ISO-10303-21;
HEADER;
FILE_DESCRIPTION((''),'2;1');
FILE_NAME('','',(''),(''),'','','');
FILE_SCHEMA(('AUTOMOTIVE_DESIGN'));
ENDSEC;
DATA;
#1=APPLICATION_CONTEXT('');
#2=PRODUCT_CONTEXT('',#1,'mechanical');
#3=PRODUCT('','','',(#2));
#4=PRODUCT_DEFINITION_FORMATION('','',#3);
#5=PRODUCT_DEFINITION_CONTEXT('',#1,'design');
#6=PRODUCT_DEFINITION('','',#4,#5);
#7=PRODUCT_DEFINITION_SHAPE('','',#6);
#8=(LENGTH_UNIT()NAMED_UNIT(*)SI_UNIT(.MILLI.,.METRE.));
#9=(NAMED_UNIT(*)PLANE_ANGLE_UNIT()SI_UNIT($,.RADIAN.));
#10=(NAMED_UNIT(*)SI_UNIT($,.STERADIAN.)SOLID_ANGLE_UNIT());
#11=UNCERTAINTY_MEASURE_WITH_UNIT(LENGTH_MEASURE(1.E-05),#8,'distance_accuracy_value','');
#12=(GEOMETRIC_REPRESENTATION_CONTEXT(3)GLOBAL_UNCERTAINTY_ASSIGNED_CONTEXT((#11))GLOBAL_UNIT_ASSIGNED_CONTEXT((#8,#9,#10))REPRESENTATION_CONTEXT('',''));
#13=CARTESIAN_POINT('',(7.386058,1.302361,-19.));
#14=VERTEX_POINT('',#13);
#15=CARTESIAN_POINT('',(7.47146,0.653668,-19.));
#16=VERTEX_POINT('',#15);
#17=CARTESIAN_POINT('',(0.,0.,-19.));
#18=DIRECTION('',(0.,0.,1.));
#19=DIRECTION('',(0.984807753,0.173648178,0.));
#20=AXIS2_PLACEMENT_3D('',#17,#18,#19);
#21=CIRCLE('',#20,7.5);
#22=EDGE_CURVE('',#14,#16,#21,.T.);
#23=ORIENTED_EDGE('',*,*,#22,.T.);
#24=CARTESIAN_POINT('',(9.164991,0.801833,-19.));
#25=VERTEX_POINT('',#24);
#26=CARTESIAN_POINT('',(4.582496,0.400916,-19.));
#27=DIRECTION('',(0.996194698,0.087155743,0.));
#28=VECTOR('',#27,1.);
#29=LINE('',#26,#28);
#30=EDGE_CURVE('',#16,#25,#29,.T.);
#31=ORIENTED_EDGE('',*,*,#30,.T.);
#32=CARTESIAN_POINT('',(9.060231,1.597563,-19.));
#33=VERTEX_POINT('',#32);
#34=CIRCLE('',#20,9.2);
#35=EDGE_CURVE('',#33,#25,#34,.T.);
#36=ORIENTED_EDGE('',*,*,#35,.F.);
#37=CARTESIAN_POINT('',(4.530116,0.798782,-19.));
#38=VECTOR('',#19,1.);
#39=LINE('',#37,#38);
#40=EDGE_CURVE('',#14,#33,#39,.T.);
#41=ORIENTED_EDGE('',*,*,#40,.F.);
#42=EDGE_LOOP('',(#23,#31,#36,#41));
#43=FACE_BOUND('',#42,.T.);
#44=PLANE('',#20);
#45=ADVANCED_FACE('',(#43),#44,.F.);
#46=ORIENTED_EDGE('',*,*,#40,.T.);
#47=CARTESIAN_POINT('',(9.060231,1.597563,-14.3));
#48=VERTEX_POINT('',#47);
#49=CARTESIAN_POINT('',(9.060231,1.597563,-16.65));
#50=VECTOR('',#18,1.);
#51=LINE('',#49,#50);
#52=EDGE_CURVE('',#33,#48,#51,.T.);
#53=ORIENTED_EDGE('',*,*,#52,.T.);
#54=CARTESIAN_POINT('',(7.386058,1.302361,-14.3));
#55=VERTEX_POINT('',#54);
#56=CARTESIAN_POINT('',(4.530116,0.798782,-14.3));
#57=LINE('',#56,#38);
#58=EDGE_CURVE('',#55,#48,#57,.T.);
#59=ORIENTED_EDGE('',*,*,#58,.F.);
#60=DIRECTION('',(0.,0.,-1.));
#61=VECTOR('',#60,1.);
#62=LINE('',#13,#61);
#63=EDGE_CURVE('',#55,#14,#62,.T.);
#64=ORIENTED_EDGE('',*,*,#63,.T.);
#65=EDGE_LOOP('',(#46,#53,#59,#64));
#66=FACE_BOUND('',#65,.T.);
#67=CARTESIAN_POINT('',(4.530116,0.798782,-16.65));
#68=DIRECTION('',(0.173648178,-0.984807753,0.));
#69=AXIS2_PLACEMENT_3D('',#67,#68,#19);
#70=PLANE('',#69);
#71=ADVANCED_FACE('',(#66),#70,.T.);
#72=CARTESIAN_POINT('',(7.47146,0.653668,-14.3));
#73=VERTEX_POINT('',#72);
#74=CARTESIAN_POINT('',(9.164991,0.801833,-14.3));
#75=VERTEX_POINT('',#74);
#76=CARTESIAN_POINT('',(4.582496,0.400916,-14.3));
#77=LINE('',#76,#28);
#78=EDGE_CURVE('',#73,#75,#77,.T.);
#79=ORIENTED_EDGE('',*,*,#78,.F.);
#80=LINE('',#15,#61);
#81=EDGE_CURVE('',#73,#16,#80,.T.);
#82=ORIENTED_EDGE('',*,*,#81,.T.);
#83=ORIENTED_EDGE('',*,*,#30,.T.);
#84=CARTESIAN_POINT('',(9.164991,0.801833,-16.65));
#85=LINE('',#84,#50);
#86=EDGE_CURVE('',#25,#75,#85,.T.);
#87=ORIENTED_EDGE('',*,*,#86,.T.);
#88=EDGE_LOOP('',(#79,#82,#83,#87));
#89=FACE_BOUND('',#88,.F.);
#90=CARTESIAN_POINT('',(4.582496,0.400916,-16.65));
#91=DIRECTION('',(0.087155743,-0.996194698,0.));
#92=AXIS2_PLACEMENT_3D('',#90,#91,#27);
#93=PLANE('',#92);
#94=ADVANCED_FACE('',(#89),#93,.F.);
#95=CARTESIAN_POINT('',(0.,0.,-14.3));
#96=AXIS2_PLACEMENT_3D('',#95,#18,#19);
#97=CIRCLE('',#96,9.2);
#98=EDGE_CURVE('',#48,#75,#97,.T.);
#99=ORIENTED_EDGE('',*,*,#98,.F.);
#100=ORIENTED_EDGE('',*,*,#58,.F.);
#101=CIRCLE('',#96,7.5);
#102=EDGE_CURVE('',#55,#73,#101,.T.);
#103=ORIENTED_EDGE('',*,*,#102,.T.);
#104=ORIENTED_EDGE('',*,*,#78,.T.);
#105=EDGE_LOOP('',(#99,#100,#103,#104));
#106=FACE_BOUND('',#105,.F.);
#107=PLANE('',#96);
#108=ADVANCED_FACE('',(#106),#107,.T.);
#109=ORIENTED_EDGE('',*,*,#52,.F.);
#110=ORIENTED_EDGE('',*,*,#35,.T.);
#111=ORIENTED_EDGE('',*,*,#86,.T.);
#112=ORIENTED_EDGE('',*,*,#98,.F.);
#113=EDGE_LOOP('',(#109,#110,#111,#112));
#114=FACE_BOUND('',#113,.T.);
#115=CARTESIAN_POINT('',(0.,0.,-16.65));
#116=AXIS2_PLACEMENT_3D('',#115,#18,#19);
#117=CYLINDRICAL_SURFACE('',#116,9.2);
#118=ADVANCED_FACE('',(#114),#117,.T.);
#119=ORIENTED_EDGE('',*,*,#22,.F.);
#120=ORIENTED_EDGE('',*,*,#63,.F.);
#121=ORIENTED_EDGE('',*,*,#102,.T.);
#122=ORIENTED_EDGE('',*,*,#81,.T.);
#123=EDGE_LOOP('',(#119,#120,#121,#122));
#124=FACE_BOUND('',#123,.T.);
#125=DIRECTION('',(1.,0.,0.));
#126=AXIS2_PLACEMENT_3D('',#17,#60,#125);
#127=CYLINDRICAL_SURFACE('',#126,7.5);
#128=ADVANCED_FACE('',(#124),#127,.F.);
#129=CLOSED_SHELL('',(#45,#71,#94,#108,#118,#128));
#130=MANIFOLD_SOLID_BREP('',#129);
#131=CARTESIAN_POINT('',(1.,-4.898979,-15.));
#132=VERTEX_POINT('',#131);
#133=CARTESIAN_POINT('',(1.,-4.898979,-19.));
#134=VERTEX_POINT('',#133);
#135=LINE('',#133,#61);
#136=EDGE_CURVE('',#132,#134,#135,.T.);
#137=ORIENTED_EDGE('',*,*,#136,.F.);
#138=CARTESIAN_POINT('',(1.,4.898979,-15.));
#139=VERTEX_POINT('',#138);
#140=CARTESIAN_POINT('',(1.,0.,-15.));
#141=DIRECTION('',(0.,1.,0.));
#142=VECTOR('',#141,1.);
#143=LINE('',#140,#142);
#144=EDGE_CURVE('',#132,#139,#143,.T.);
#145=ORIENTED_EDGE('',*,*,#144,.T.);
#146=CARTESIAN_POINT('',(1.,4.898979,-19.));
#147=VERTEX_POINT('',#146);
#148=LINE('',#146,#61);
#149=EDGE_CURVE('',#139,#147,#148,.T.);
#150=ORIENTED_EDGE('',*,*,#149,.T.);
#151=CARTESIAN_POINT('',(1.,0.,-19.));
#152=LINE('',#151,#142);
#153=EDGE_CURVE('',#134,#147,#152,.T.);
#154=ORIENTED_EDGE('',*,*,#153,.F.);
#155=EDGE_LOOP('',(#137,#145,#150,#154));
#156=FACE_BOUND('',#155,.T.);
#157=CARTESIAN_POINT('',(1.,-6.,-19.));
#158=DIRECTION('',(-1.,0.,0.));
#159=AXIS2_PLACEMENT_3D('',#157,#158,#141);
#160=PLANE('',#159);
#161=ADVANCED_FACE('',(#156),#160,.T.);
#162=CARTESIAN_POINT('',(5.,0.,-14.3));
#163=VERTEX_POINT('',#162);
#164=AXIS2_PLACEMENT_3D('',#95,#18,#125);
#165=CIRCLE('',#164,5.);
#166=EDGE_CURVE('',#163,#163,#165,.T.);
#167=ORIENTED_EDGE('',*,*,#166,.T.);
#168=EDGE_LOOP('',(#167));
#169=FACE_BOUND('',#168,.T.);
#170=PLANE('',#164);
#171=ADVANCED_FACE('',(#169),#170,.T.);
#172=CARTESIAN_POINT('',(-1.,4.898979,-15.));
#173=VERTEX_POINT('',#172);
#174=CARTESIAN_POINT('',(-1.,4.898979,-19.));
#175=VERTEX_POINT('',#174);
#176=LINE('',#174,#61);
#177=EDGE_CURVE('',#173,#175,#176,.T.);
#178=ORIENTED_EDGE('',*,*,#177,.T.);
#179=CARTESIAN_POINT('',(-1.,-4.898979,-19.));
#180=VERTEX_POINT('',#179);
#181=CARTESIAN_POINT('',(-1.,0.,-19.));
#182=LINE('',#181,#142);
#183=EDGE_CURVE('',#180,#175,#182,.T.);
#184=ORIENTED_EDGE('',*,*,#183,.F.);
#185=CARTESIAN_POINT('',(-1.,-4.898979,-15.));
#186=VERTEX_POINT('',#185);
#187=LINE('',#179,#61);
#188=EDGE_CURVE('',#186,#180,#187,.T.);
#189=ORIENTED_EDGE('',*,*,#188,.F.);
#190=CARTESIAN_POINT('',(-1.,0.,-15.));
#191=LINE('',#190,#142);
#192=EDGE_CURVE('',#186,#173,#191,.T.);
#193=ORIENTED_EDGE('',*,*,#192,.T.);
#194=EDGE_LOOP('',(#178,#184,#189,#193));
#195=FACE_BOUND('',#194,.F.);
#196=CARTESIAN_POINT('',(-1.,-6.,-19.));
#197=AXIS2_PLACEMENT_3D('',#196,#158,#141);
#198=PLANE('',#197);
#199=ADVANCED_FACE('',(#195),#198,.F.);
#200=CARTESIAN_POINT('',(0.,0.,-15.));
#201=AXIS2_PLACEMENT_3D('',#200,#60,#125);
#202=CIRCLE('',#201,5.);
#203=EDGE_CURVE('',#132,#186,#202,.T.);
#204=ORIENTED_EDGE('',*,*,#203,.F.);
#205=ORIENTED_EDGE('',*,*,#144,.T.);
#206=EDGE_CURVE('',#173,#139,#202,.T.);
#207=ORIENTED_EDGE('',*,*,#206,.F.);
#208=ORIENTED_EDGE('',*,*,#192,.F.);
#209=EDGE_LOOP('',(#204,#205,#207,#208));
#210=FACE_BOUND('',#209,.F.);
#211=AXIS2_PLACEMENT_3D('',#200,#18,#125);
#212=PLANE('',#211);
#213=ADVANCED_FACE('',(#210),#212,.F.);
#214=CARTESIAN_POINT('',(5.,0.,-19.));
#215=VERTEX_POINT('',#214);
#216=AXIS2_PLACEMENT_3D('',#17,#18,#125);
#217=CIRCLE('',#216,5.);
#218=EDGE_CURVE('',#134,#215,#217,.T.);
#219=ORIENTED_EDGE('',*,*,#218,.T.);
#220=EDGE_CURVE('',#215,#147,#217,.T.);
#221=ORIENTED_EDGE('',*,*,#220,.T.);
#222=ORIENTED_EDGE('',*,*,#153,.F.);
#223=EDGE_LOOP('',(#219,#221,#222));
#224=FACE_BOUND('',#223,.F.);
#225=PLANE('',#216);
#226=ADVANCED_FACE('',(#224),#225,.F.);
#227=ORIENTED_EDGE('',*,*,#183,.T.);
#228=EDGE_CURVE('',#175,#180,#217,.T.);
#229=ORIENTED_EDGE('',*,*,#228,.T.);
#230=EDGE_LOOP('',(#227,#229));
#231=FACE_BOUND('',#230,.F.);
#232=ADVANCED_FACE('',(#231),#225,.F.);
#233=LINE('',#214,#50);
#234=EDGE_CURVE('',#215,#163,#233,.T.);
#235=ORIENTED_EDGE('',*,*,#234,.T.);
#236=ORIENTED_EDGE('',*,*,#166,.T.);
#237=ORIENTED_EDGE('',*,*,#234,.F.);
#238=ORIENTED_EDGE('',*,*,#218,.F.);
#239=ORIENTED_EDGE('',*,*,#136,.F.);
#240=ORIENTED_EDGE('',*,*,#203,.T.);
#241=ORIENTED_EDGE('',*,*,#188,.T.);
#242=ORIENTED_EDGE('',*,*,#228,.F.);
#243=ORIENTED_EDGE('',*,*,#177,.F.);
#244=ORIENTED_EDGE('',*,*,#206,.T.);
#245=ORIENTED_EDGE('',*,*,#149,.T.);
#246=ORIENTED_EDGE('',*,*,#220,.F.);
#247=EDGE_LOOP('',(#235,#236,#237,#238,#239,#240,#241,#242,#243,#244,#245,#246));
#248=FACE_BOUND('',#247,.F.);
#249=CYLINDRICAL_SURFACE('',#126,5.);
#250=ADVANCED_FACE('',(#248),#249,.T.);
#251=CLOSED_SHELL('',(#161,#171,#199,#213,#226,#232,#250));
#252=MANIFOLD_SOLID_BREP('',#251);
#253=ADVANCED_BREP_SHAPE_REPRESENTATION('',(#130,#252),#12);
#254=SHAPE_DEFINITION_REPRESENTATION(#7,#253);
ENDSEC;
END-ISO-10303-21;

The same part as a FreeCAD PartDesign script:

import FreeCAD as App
import Part
import Sketcher

V = App.Vector


def add_polygon(sketch, points):
    """Adds a closed chain of lines whose ends are joined by coincident constraints."""
    first, n = sketch.GeometryCount, len(points)
    for a, b in zip(points, points[1:] + points[:1]):
        sketch.addGeometry(Part.LineSegment(App.Vector(*a, 0), App.Vector(*b, 0)), False)
    for i in range(n):
        sketch.addConstraint(Sketcher.Constraint("Coincident", first + i, 2, first + (i + 1) % n, 1))

doc = App.newDocument("Part")
params = doc.addObject("Spreadsheet::Sheet", "Params")
for row, (alias, value) in enumerate([
    ("sketch1_width", "2 mm"),
    ("sketch1_height", "12 mm"),
    ("pad1_length", "4 mm"),
    ("sketch2_diameter", "10 mm"),
    ("pad2_length", "4.7 mm"),
    ("sketch3_diameter", "15 mm"),
    ("pad3_length", "4.7 mm"),
    ("sketch4_width", "9.2 mm"),
    ("sketch4_height", "4.7 mm"),
    ("revolution_angle", "355 deg"),
], start=1):
    params.set(f"A{row}", alias)
    params.set(f"B{row}", "=" + value)
    params.setAlias(f"B{row}", alias)

body = doc.addObject("PartDesign::Body", "Body")

# Sketch on XY plane
sketch1 = body.newObject("Sketcher::SketchObject", "Sketch")
sketch1.AttachmentSupport = (doc.getObject("XY_Plane"), [""])
sketch1.MapMode = "FlatFace"
sketch1.AttachmentOffset = App.Placement(V(0, 0, -19), App.Rotation())
add_polygon(sketch1, [(-1, 6), (-1, -6), (1, -6), (1, 6)])  # lines 0-3
sketch1.addConstraint([
    Sketcher.Constraint("Vertical", 0),
    Sketcher.Constraint("Horizontal", 1),
    Sketcher.Constraint("Vertical", 2),
    Sketcher.Constraint("Horizontal", 3),
    Sketcher.Constraint("Symmetric", 0, 2, 2, 2, -1, 1),
    Sketcher.Constraint("DistanceX", 1, 1, 1, 2, 2.0),
    Sketcher.Constraint("DistanceY", 0, 2, 0, 1, 12.0),
])
sketch1.setExpression("Constraints[9]", "Params.sketch1_width")
sketch1.setExpression("Constraints[10]", "Params.sketch1_height")
pad1 = body.newObject("PartDesign::Pad", "Pad")
pad1.Profile = sketch1
pad1.setExpression("Length", "Params.pad1_length")
body2 = doc.addObject("PartDesign::Body", "Body001")

# Sketch on XY plane
sketch2 = body2.newObject("Sketcher::SketchObject", "Sketch001")
sketch2.AttachmentSupport = (doc.getObject("XY_Plane001"), [""])
sketch2.MapMode = "FlatFace"
sketch2.AttachmentOffset = App.Placement(V(0, 0, -19), App.Rotation())
sketch2.addGeometry(Part.Circle(V(0, 0, 0), V(0, 0, 1), 5), False)
sketch2.addConstraint([
    Sketcher.Constraint("Coincident", 0, 3, -1, 1),
    Sketcher.Constraint("Diameter", 0, 10.0),
])
sketch2.setExpression("Constraints[1]", "Params.sketch2_diameter")
pad2 = body2.newObject("PartDesign::Pad", "Pad001")
pad2.Profile = sketch2
pad2.setExpression("Length", "Params.pad2_length")
body3 = doc.addObject("PartDesign::Body", "Body002")

# Sketch on XY plane
sketch3 = body3.newObject("Sketcher::SketchObject", "Sketch002")
sketch3.AttachmentSupport = (doc.getObject("XY_Plane002"), [""])
sketch3.MapMode = "FlatFace"
sketch3.AttachmentOffset = App.Placement(V(0, 0, -19), App.Rotation())
sketch3.addGeometry(Part.Circle(V(0, 0, 0), V(0, 0, 1), 8), False)
sketch3.addConstraint([
    Sketcher.Constraint("Coincident", 0, 3, -1, 1),
    Sketcher.Constraint("Diameter", 0, 15.0),
])
sketch3.setExpression("Constraints[1]", "Params.sketch3_diameter")
pad3 = body3.newObject("PartDesign::Pad", "Pad002")
pad3.Profile = sketch3
pad3.setExpression("Length", "Params.pad3_length")
body4 = doc.addObject("PartDesign::Body", "Body003")

# Sketch on XZ plane
sketch4 = body4.newObject("Sketcher::SketchObject", "Sketch003")
sketch4.AttachmentSupport = (doc.getObject("XZ_Plane003"), [""])
sketch4.MapMode = "FlatFace"
add_polygon(sketch4, [(0, 4.7), (0, 0), (9.2, 0), (9.2, 4.7)])  # lines 0-3
sketch4.addConstraint([
    Sketcher.Constraint("Vertical", 0),
    Sketcher.Constraint("Horizontal", 1),
    Sketcher.Constraint("Vertical", 2),
    Sketcher.Constraint("Horizontal", 3),
    Sketcher.Constraint("Coincident", 0, 2, -1, 1),
    Sketcher.Constraint("DistanceX", 1, 1, 1, 2, 9.2),
    Sketcher.Constraint("DistanceY", 0, 2, 0, 1, 4.7),
])
sketch4.setExpression("Constraints[9]", "Params.sketch4_width")
sketch4.setExpression("Constraints[10]", "Params.sketch4_height")
revolution = body4.newObject("PartDesign::Revolution", "Revolution")
revolution.Profile = sketch4
revolution.ReferenceAxis = (sketch4, ["V_Axis"])
revolution.setExpression("Angle", "Params.revolution_angle")
body5 = doc.addObject("PartDesign::Body", "Body004")
body5.AllowCompound = True
doc.recompute()

body4.Placement = App.Placement(V(0, 0, -19), App.Rotation(V(0, 0, 1), 10))
boolean = body5.newObject("PartDesign::Boolean", "Boolean")
boolean.Type = "Fuse"
boolean.addObjects([body4])
doc.recompute()

boolean2 = body5.newObject("PartDesign::Boolean", "Boolean001")
boolean2.Type = "Cut"
boolean2.addObjects([body3])
doc.recompute()

boolean3 = body5.newObject("PartDesign::Boolean", "Boolean002")
boolean3.Type = "Fuse"
boolean3.addObjects([body2])
doc.recompute()

boolean4 = body5.newObject("PartDesign::Boolean", "Boolean003")
boolean4.Type = "Cut"
boolean4.addObjects([body])

doc.recompute()
